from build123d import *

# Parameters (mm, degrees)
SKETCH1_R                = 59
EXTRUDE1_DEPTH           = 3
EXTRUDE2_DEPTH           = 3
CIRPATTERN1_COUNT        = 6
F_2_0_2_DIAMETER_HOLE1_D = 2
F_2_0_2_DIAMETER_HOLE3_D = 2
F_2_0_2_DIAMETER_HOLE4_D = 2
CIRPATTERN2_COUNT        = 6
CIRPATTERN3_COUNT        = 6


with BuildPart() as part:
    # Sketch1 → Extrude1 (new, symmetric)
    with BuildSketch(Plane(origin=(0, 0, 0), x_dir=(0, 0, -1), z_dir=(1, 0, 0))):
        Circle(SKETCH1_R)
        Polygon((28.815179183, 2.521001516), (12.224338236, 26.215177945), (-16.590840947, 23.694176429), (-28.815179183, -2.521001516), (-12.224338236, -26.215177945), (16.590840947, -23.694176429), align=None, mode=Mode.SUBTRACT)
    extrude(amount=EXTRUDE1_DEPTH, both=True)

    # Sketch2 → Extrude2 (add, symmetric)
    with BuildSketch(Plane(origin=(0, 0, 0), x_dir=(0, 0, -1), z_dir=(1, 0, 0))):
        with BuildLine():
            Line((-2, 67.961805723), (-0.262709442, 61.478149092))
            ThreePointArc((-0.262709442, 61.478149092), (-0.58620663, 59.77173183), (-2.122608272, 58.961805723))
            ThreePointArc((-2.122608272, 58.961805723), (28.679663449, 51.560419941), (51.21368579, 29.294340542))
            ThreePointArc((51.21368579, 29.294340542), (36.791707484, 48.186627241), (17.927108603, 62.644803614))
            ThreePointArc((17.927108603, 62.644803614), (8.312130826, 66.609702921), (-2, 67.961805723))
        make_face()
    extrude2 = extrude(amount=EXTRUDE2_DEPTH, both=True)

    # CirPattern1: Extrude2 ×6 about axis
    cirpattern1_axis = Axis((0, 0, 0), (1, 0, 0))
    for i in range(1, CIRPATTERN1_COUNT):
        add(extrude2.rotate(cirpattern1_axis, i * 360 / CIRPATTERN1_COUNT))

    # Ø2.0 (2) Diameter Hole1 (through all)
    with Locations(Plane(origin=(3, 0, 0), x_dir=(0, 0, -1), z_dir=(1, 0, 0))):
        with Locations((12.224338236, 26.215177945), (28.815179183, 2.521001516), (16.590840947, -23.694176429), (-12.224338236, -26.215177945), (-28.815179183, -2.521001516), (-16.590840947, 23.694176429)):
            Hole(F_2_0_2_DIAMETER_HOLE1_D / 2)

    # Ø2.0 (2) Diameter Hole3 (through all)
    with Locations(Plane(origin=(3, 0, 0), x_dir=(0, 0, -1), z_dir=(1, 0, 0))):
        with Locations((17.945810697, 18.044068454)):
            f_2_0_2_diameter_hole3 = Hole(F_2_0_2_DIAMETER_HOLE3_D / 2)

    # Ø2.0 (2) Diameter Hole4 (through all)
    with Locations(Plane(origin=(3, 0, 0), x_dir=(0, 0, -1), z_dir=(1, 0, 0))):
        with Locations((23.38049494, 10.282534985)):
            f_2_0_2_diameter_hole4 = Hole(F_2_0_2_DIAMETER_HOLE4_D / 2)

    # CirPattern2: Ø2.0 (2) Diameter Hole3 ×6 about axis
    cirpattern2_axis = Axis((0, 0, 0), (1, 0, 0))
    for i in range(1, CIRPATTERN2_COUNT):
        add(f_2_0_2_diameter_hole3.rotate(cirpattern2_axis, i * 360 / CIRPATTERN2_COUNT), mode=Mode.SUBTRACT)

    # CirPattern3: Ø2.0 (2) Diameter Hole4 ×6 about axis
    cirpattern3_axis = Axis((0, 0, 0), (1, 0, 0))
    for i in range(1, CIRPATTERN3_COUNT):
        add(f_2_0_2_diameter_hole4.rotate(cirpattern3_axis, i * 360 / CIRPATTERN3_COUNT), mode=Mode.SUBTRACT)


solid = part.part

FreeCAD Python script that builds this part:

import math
import FreeCAD as App
import Part
import Sketcher
Q = App.Units.Quantity

doc = App.newDocument("Part")
params = doc.addObject("Spreadsheet::Sheet", "Params")
for row, (alias, value) in enumerate([
    ("sketch1_diameter", "118 mm"),
    ("pad1_length", "6 mm"),
    ("sketch2_radius", "2 mm"),
    ("sketch2_radius2", "59 mm"),
    ("sketch2_radius3", "90 mm"),
    ("sketch2_radius4", "40 mm"),
    ("pad2_length", "6 mm"),
    ("sketch3_diameter", "2 mm"),
    ("hole_diameter", "2 mm"),
    ("sketch4_diameter", "2 mm"),
    ("hole2_diameter", "2 mm"),
    ("sketch5_diameter", "2 mm"),
    ("hole3_diameter", "2 mm"),
], start=1):
    params.set(f"A{row}", alias)
    params.set(f"B{row}", "=" + value)
    params.setAlias(f"B{row}", alias)

body = doc.addObject("PartDesign::Body", "Body")

sketch1 = body.newObject("Sketcher::SketchObject", "Sketch")
sketch1.AttachmentSupport = (doc.getObject("YZ_Plane"), [""])
sketch1.MapMode = "FlatFace"
sketch1.addGeometry([
    Part.Circle(App.Vector(0, 0, 0), App.Vector(0, 0, 1), 59),
    Part.LineSegment(App.Vector(26, -12, 0), App.Vector(3, -29, 0)),
    Part.LineSegment(App.Vector(3, -29, 0), App.Vector(-24, -17, 0)),
    Part.LineSegment(App.Vector(-24, -17, 0), App.Vector(-26, 12, 0)),
    Part.LineSegment(App.Vector(-26, 12, 0), App.Vector(-3, 29, 0)),
    Part.LineSegment(App.Vector(-3, 29, 0), App.Vector(24, 17, 0)),
    Part.LineSegment(App.Vector(24, 17, 0), App.Vector(26, -12, 0)),
], False)
sketch1.addConstraint([
    Sketcher.Constraint("Coincident", 1, 2, 2, 1),
    Sketcher.Constraint("Coincident", 2, 2, 3, 1),
    Sketcher.Constraint("Coincident", 3, 2, 4, 1),
    Sketcher.Constraint("Coincident", 4, 2, 5, 1),
    Sketcher.Constraint("Coincident", 5, 2, 6, 1),
    Sketcher.Constraint("Coincident", 6, 2, 1, 1),
    Sketcher.Constraint("Coincident", 0, 3, -1, 1),
    Sketcher.Constraint("Symmetric", 1, 2, 4, 2, -1, 1),
    Sketcher.Constraint("Symmetric", 2, 2, 5, 2, -1, 1),
    Sketcher.Constraint("Symmetric", 3, 2, 6, 2, -1, 1),
    Sketcher.Constraint("Equal", 1, 2),
    Sketcher.Constraint("Equal", 2, 3),
    Sketcher.Constraint("Diameter", 0, Q("118 mm")),
    Sketcher.Constraint("Angle", 1, Q("-145 deg")),
    Sketcher.Constraint("Angle", 2, Q("155 deg")),
    Sketcher.Constraint("Angle", 3, Q("95 deg")),
    Sketcher.Constraint("DistanceX", -1, 1, 1, 2, Q("2.521002 mm")),
])
sketch1.setExpression("Constraints[12]", "Params.sketch1_diameter")
pad1 = body.newObject("PartDesign::Pad", "Pad")
pad1.Profile = sketch1
pad1.setExpression("Length", "Params.pad1_length")
pad1.Midplane = True

sketch2 = body.newObject("Sketcher::SketchObject", "Sketch001")
sketch2.AttachmentSupport = (doc.getObject("YZ_Plane"), [""])
sketch2.MapMode = "FlatFace"
sketch2.addGeometry([
    Part.LineSegment(App.Vector(68, 2, 0), App.Vector(61.5, 0.3, 0)),
    Part.ArcOfCircle(Part.Circle(App.Vector(61, 2.2, 0), App.Vector(0, 0, 1), 2), math.radians(-178), math.radians(-75)),
    Part.ArcOfCircle(Part.Circle(App.Vector(0, 0, 0), App.Vector(0, 0, 1), 59), math.radians(-60), math.radians(2)),
    Part.ArcOfCircle(Part.Circle(App.Vector(-15.4, 26.9, 0), App.Vector(0, 0, 1), 90), math.radians(-60), math.radians(-30)),
    Part.ArcOfCircle(Part.Circle(App.Vector(28, 2, 0), App.Vector(0, 0, 1), 40), math.radians(-30), math.radians(0)),
], False)
sketch2.addConstraint([
    Sketcher.Constraint("Tangent", 0, 2, 1, 2),
    Sketcher.Constraint("Tangent", 1, 1, 2, 2),
    Sketcher.Constraint("Tangent", 2, 1, 3, 1),
    Sketcher.Constraint("Tangent", 3, 2, 4, 1),
    Sketcher.Constraint("Coincident", 4, 2, 0, 1),
    Sketcher.Constraint("Coincident", 2, 3, -1, 1),
    Sketcher.Constraint("Radius", 1, Q("2 mm")),
    Sketcher.Constraint("Radius", 2, Q("59 mm")),
    Sketcher.Constraint("Radius", 3, Q("90 mm")),
    Sketcher.Constraint("Radius", 4, Q("40 mm")),
    Sketcher.Constraint("Angle", 0, Q("-165 deg")),
    Sketcher.Constraint("DistanceY", -1, 1, 4, 3, Q("2 mm")),
    Sketcher.Constraint("DistanceY", -1, 1, 4, 2, Q("2 mm")),
    Sketcher.Constraint("DistanceX", 4, 3, 1, 1, Q("31 mm")),
])
sketch2.setExpression("Constraints[6]", "Params.sketch2_radius")
sketch2.setExpression("Constraints[7]", "Params.sketch2_radius2")
sketch2.setExpression("Constraints[8]", "Params.sketch2_radius3")
sketch2.setExpression("Constraints[9]", "Params.sketch2_radius4")
pad2 = body.newObject("PartDesign::Pad", "Pad001")
pad2.Profile = sketch2
pad2.setExpression("Length", "Params.pad2_length")
pad2.Midplane = True
doc.recompute()

polarpattern = body.newObject("PartDesign::PolarPattern", "PolarPattern")
polarpattern.Originals = [pad2]
polarpattern.Axis = (doc.getObject("X_Axis"), [""])
polarpattern.Angle = 360
polarpattern.Occurrences = 6
body.Tip = polarpattern

sketch3 = body.newObject("Sketcher::SketchObject", "Sketch002")
sketch3.AttachmentSupport = (doc.getObject("YZ_Plane"), [""])
sketch3.MapMode = "FlatFace"
sketch3.AttachmentOffset = App.Placement(App.Vector(0, 0, 3), App.Rotation())
sketch3.addGeometry([
    Part.Circle(App.Vector(26.2, -12.2, 0), App.Vector(0, 0, 1), 1),
    Part.Circle(App.Vector(2.5, -28.8, 0), App.Vector(0, 0, 1), 1),
    Part.Circle(App.Vector(-23.7, -16.6, 0), App.Vector(0, 0, 1), 1),
    Part.Circle(App.Vector(-26.2, 12.2, 0), App.Vector(0, 0, 1), 1),
    Part.Circle(App.Vector(-2.5, 28.8, 0), App.Vector(0, 0, 1), 1),
    Part.Circle(App.Vector(23.7, 16.6, 0), App.Vector(0, 0, 1), 1),
], False)
sketch3.addConstraint([
    Sketcher.Constraint("Equal", 0, 1),
    Sketcher.Constraint("Equal", 1, 2),
    Sketcher.Constraint("Equal", 2, 3),
    Sketcher.Constraint("Equal", 3, 4),
    Sketcher.Constraint("Equal", 4, 5),
    Sketcher.Constraint("Symmetric", 0, 3, 3, 3, -1, 1),
    Sketcher.Constraint("Symmetric", 1, 3, 4, 3, -1, 1),
    Sketcher.Constraint("Symmetric", 2, 3, 5, 3, -1, 1),
    Sketcher.Constraint("Diameter", 0, Q("2 mm")),
    Sketcher.Constraint("DistanceX", -1, 1, 1, 3, Q("2.521002 mm")),
    Sketcher.Constraint("DistanceX", 3, 3, 2, 3, Q("2.521002 mm")),
    Sketcher.Constraint("DistanceY", 0, 3, -1, 1, Q("12.224338 mm")),
    Sketcher.Constraint("DistanceY", 1, 3, -1, 1, Q("28.815179 mm")),
    Sketcher.Constraint("DistanceY", 2, 3, -1, 1, Q("16.590841 mm")),
    Sketcher.Constraint("DistanceX", 3, 3, 1, 3, Q("28.736179 mm")),
])
sketch3.setExpression("Constraints[8]", "Params.sketch3_diameter")
doc.recompute()
hole = body.newObject("PartDesign::Hole", "Hole")
hole.Profile = sketch3
hole.ThreadType = "None"
hole.setExpression("Diameter", "Params.hole_diameter")
hole.DepthType = "ThroughAll"

sketch4 = body.newObject("Sketcher::SketchObject", "Sketch003")
sketch4.AttachmentSupport = (doc.getObject("YZ_Plane"), [""])
sketch4.MapMode = "FlatFace"
sketch4.AttachmentOffset = App.Placement(App.Vector(0, 0, 3), App.Rotation())
sketch4.addGeometry(Part.Circle(App.Vector(18, -17.9, 0), App.Vector(0, 0, 1), 1), False)
sketch4.addConstraint([
    Sketcher.Constraint("Diameter", 0, Q("2 mm")),
    Sketcher.Constraint("DistanceX", -1, 1, 0, 3, Q("18.044068 mm")),
    Sketcher.Constraint("DistanceY", 0, 3, -1, 1, Q("17.945811 mm")),
])
sketch4.setExpression("Constraints[0]", "Params.sketch4_diameter")
doc.recompute()
hole2 = body.newObject("PartDesign::Hole", "Hole001")
hole2.Profile = sketch4
hole2.ThreadType = "None"
hole2.setExpression("Diameter", "Params.hole2_diameter")
hole2.DepthType = "ThroughAll"

sketch5 = body.newObject("Sketcher::SketchObject", "Sketch004")
sketch5.AttachmentSupport = (doc.getObject("YZ_Plane"), [""])
sketch5.MapMode = "FlatFace"
sketch5.AttachmentOffset = App.Placement(App.Vector(0, 0, 3), App.Rotation())
sketch5.addGeometry(Part.Circle(App.Vector(10.3, -23.4, 0), App.Vector(0, 0, 1), 1), False)
sketch5.addConstraint([
    Sketcher.Constraint("Diameter", 0, Q("2 mm")),
    Sketcher.Constraint("DistanceX", -1, 1, 0, 3, Q("10.282535 mm")),
    Sketcher.Constraint("DistanceY", 0, 3, -1, 1, Q("23.380495 mm")),
])
sketch5.setExpression("Constraints[0]", "Params.sketch5_diameter")
doc.recompute()
hole3 = body.newObject("PartDesign::Hole", "Hole002")
hole3.Profile = sketch5
hole3.ThreadType = "None"
hole3.setExpression("Diameter", "Params.hole3_diameter")
hole3.DepthType = "ThroughAll"
doc.recompute()

polarpattern2 = body.newObject("PartDesign::PolarPattern", "PolarPattern001")
polarpattern2.Originals = [hole2]
polarpattern2.Axis = (doc.getObject("X_Axis"), [""])
polarpattern2.Angle = 360
polarpattern2.Occurrences = 6
body.Tip = polarpattern2
doc.recompute()

polarpattern3 = body.newObject("PartDesign::PolarPattern", "PolarPattern002")
polarpattern3.Originals = [hole3]
polarpattern3.Axis = (doc.getObject("X_Axis"), [""])
polarpattern3.Angle = 360
polarpattern3.Occurrences = 6
body.Tip = polarpattern3

doc.recompute()
